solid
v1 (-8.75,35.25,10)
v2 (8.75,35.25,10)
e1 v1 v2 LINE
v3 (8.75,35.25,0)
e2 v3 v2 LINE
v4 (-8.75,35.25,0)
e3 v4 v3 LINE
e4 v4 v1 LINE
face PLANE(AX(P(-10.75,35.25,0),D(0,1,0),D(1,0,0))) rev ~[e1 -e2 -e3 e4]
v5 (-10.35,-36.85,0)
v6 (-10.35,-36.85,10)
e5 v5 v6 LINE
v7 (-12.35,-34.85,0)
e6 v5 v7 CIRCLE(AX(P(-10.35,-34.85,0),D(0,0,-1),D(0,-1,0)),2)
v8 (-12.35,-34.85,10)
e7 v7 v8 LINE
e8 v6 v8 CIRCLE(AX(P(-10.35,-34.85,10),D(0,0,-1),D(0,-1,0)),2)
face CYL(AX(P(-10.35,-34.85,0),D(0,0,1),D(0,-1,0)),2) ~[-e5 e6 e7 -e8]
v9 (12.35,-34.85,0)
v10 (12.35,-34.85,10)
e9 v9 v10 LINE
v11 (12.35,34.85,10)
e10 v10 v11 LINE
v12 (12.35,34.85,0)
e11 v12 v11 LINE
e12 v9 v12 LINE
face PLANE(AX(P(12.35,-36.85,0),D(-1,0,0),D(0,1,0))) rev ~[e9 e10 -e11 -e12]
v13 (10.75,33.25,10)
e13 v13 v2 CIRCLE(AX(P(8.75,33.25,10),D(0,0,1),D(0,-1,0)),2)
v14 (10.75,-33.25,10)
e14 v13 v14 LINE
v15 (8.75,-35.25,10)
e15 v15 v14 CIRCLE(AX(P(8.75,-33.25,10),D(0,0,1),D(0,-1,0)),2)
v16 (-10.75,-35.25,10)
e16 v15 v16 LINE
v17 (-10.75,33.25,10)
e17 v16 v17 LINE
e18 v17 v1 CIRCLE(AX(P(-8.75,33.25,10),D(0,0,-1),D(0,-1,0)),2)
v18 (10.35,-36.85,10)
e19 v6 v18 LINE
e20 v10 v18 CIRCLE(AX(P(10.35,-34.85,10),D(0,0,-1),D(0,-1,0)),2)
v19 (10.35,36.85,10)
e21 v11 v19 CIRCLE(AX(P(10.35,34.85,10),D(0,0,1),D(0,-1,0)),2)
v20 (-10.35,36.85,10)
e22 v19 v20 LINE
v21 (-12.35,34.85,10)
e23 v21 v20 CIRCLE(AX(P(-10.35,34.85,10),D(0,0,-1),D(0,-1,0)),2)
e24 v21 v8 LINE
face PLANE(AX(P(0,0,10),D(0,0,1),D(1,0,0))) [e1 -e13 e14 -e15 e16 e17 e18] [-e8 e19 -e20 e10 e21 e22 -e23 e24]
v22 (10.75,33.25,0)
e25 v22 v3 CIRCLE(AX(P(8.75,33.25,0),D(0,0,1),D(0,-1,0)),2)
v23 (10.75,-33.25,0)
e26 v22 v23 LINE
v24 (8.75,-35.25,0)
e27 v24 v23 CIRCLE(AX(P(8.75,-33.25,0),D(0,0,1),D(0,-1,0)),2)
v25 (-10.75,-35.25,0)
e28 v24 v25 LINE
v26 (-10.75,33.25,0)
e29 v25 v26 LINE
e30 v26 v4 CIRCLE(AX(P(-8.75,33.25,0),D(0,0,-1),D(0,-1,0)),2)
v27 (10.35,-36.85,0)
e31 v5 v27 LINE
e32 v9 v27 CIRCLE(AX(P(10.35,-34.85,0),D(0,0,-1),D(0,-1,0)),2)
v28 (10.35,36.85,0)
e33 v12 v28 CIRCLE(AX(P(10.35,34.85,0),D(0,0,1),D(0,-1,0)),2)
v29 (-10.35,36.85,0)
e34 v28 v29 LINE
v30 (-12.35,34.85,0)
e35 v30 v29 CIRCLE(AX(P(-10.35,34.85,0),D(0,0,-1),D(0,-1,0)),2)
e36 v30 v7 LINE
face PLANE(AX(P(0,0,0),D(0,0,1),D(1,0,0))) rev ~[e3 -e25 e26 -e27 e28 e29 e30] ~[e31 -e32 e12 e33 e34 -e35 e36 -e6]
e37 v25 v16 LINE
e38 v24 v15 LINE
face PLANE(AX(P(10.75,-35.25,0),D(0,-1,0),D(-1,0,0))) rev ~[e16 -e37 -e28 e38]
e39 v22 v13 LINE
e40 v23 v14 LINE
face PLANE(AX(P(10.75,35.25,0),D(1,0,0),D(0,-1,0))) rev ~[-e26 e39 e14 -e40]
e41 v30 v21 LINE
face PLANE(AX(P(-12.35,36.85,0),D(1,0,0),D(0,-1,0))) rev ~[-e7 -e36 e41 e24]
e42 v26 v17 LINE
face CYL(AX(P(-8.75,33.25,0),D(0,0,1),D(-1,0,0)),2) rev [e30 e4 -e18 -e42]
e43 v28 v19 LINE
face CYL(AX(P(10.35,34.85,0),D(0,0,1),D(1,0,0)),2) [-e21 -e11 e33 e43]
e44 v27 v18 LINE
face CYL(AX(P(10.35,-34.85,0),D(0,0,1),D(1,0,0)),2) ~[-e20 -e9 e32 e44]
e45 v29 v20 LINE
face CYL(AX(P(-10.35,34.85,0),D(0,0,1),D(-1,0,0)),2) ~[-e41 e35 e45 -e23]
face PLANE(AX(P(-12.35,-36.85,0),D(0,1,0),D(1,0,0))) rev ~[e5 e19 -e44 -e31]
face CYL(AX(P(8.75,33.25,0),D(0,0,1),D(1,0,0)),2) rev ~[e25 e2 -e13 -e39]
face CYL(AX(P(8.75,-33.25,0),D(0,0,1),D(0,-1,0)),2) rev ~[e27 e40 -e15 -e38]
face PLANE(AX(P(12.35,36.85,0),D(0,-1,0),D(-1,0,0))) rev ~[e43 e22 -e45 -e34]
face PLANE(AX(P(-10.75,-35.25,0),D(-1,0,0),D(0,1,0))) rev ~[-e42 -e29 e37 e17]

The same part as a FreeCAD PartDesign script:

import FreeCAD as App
import Part
import Sketcher

V = App.Vector


def edges_at(feature, points):
    """Names of the edges that pass closest to the given points."""
    edges = feature.Shape.Edges
    near = lambda p: min(range(len(edges)), key=lambda i: edges[i].distToShape(Part.Vertex(*p))[0])
    return sorted({f"Edge{near(p) + 1}" for p in points})

doc = App.newDocument("Part")
body = doc.addObject("PartDesign::Body", "Body")

# Sketch on XY plane
sketch1 = body.newObject("Sketcher::SketchObject", "Sketch")
sketch1.AttachmentSupport = (doc.getObject("XY_Plane"), [""])
sketch1.MapMode = "FlatFace"
sketch1.addGeometry(Part.LineSegment(V(12.35, -36.85, 0), V(12.35, 36.85, 0)), False)
sketch1.addGeometry(Part.LineSegment(V(12.35, 36.85, 0), V(-12.35, 36.85, 0)), False)
sketch1.addGeometry(Part.LineSegment(V(-12.35, 36.85, 0), V(-12.35, -36.85, 0)), False)
sketch1.addGeometry(Part.LineSegment(V(-12.35, -36.85, 0), V(12.35, -36.85, 0)), False)
sketch1.addGeometry(Part.LineSegment(V(-10.75, -35.25, 0), V(-10.75, 35.25, 0)), False)
sketch1.addGeometry(Part.LineSegment(V(-10.75, 35.25, 0), V(10.75, 35.25, 0)), False)
sketch1.addGeometry(Part.LineSegment(V(10.75, 35.25, 0), V(10.75, -35.25, 0)), False)
sketch1.addGeometry(Part.LineSegment(V(10.75, -35.25, 0), V(-10.75, -35.25, 0)), False)
sketch1.addConstraint(Sketcher.Constraint("Coincident", 0, 2, 1, 1))
sketch1.addConstraint(Sketcher.Constraint("Coincident", 1, 2, 2, 1))
sketch1.addConstraint(Sketcher.Constraint("Coincident", 2, 2, 3, 1))
sketch1.addConstraint(Sketcher.Constraint("Coincident", 3, 2, 0, 1))
sketch1.addConstraint(Sketcher.Constraint("Coincident", 4, 2, 5, 1))
sketch1.addConstraint(Sketcher.Constraint("Coincident", 5, 2, 6, 1))
sketch1.addConstraint(Sketcher.Constraint("Coincident", 6, 2, 7, 1))
sketch1.addConstraint(Sketcher.Constraint("Coincident", 7, 2, 4, 1))
sketch1.addConstraint(Sketcher.Constraint("Vertical", 0))
sketch1.addConstraint(Sketcher.Constraint("Horizontal", 1))
sketch1.addConstraint(Sketcher.Constraint("Vertical", 2))
sketch1.addConstraint(Sketcher.Constraint("Horizontal", 3))
sketch1.addConstraint(Sketcher.Constraint("Vertical", 4))
sketch1.addConstraint(Sketcher.Constraint("Horizontal", 5))
sketch1.addConstraint(Sketcher.Constraint("Vertical", 6))
sketch1.addConstraint(Sketcher.Constraint("Horizontal", 7))
sketch1.addConstraint(Sketcher.Constraint("Symmetric", 0, 2, 2, 2, -1, 1))
sketch1.addConstraint(Sketcher.Constraint("Symmetric", 4, 2, 6, 2, -1, 1))
sketch1.addConstraint(Sketcher.Constraint("DistanceX", 5, 1, 5, 2, 21.5))
sketch1.addConstraint(Sketcher.Constraint("DistanceY", 4, 1, 4, 2, 70.5))
sketch1.addConstraint(Sketcher.Constraint("DistanceX", 1, 2, 4, 2, 1.6))
sketch1.addConstraint(Sketcher.Constraint("DistanceY", 4, 2, 1, 2, 1.6))
pad1 = body.newObject("PartDesign::Pad", "Pad")
pad1.Profile = sketch1
pad1.Length = 10
doc.recompute()

fillet = body.newObject("PartDesign::Fillet", "Fillet")
fillet.Base = (pad1, edges_at(pad1, [
    (12.35, 36.85, 5),
    (10.75, 35.25, 5),
    (-10.75, 35.25, 5),
    (-12.35, 36.85, 5),
    (-12.35, -36.85, 5),
    (12.35, -36.85, 5),
    (10.75, -35.25, 5),
]))
fillet.Radius = 2

doc.recompute()
